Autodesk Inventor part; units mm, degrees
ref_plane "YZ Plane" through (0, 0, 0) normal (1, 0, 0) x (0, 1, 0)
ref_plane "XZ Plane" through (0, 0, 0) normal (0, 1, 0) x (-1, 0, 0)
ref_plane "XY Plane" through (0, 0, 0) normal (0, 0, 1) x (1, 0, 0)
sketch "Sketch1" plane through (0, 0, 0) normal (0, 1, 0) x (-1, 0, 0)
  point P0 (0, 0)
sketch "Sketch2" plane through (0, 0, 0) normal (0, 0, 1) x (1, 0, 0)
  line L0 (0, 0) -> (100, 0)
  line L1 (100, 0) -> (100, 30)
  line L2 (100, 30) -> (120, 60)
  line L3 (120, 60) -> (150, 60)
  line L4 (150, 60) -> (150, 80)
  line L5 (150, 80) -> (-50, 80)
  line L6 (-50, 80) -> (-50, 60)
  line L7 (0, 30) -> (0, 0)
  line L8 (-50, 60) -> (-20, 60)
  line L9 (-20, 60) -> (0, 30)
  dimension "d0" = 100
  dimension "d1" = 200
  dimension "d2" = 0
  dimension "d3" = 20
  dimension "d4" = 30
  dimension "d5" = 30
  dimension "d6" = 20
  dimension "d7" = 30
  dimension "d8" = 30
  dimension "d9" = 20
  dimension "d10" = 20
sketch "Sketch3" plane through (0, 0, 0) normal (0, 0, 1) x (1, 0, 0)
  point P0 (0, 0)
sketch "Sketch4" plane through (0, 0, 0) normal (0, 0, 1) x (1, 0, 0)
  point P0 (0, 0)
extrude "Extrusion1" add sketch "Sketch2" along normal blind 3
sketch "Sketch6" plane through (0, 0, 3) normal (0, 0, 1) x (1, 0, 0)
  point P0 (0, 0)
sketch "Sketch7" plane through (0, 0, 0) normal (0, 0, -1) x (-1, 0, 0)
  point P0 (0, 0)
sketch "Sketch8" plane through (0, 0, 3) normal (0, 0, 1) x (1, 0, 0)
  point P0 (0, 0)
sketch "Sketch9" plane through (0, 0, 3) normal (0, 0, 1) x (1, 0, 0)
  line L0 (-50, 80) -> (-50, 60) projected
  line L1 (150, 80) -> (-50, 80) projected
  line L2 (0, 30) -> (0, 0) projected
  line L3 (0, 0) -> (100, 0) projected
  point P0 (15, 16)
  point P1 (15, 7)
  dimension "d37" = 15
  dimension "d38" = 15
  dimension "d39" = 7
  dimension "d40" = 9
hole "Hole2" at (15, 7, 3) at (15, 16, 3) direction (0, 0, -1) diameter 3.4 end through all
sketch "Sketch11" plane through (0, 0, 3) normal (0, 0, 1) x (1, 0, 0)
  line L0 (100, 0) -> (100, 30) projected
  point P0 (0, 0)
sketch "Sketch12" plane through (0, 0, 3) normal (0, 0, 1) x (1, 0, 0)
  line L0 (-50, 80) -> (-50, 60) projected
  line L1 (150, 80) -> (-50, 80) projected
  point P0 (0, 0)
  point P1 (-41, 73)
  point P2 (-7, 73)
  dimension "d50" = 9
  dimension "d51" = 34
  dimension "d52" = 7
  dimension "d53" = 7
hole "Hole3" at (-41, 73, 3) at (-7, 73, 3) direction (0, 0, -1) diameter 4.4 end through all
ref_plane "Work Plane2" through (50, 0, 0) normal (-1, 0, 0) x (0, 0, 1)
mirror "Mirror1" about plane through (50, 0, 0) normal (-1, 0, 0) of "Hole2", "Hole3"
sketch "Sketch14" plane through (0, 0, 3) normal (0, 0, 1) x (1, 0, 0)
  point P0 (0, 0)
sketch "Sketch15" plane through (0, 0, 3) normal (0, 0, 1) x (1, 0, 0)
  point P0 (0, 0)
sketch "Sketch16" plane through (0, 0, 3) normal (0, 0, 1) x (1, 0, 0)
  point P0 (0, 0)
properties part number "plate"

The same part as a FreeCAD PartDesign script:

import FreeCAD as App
import Part
import Sketcher

V = App.Vector
Q = App.Units.Quantity

doc = App.newDocument("Part")
body = doc.addObject("PartDesign::Body", "Body")

# Sketch on XY plane
sketch1 = body.newObject("Sketcher::SketchObject", "Sketch")
sketch1.AttachmentSupport = (doc.getObject("XY_Plane"), [""])
sketch1.MapMode = "FlatFace"
sketch1.addGeometry([
    Part.LineSegment(V(0, 30, 0), V(0, 0, 0)),  # 0
    Part.LineSegment(V(0, 0, 0), V(100, 0, 0)),  # 1
    Part.LineSegment(V(100, 0, 0), V(100, 30, 0)),  # 2
    Part.LineSegment(V(100, 30, 0), V(120, 60, 0)),  # 3
    Part.LineSegment(V(120, 60, 0), V(150, 60, 0)),  # 4
    Part.LineSegment(V(150, 60, 0), V(150, 80, 0)),  # 5
    Part.LineSegment(V(150, 80, 0), V(-50, 80, 0)),  # 6
    Part.LineSegment(V(-50, 80, 0), V(-50, 60, 0)),  # 7
    Part.LineSegment(V(-50, 60, 0), V(-20, 60, 0)),  # 8
    Part.LineSegment(V(-20, 60, 0), V(0, 30, 0)),  # 9
], False)
sketch1.addConstraint([
    Sketcher.Constraint("Coincident", 0, 2, 1, 1),
    Sketcher.Constraint("Coincident", 1, 2, 2, 1),
    Sketcher.Constraint("Coincident", 2, 2, 3, 1),
    Sketcher.Constraint("Coincident", 3, 2, 4, 1),
    Sketcher.Constraint("Coincident", 4, 2, 5, 1),
    Sketcher.Constraint("Coincident", 5, 2, 6, 1),
    Sketcher.Constraint("Coincident", 6, 2, 7, 1),
    Sketcher.Constraint("Coincident", 7, 2, 8, 1),
    Sketcher.Constraint("Coincident", 8, 2, 9, 1),
    Sketcher.Constraint("Coincident", 9, 2, 0, 1),
    Sketcher.Constraint("Vertical", 0),
    Sketcher.Constraint("Horizontal", 1),
    Sketcher.Constraint("Vertical", 2),
    Sketcher.Constraint("Horizontal", 4),
    Sketcher.Constraint("Vertical", 5),
    Sketcher.Constraint("Horizontal", 6),
    Sketcher.Constraint("Vertical", 7),
    Sketcher.Constraint("Horizontal", 8),
    Sketcher.Constraint("Coincident", 0, 2, -1, 1),
    Sketcher.Constraint("Horizontal", 4, 2, 7, 2),
    Sketcher.Constraint("Horizontal", 2, 2, 9, 2),
    Sketcher.Constraint("Equal", 4, 8),
    Sketcher.Constraint("Equal", 8, 0),
    Sketcher.Constraint("Equal", 3, 9),
    Sketcher.Constraint("DistanceX", 1, 1, 1, 2, Q("100 mm")),
    Sketcher.Constraint("DistanceX", 4, 1, 4, 2, Q("30 mm")),
    Sketcher.Constraint("DistanceX", 6, 2, 6, 1, Q("200 mm")),
    Sketcher.Constraint("DistanceY", 5, 1, 5, 2, Q("20 mm")),
    Sketcher.Constraint("DistanceY", 2, 2, 3, 2, Q("30 mm")),
])
pad1 = body.newObject("PartDesign::Pad", "Pad")
pad1.Profile = sketch1
pad1.Length = 3

# Sketch on XY plane
sketch2 = body.newObject("Sketcher::SketchObject", "Sketch001")
sketch2.AttachmentSupport = (doc.getObject("XY_Plane"), [""])
sketch2.MapMode = "FlatFace"
sketch2.AttachmentOffset = App.Placement(V(0, 0, 3), App.Rotation())
sketch2.addGeometry([
    Part.Circle(V(15, 7, 0), V(0, 0, 1), 1.7),
    Part.Circle(V(15, 16, 0), V(0, 0, 1), 1.7),
], False)
sketch2.addConstraint([
    Sketcher.Constraint("Equal", 0, 1),
    Sketcher.Constraint("Vertical", 0, 3, 1, 3),
    Sketcher.Constraint("Diameter", 0, Q("3.4 mm")),
    Sketcher.Constraint("DistanceX", -1, 1, 0, 3, Q("15 mm")),
    Sketcher.Constraint("DistanceY", -1, 1, 0, 3, Q("7 mm")),
    Sketcher.Constraint("DistanceY", -1, 1, 1, 3, Q("16 mm")),
])
doc.recompute()
hole = body.newObject("PartDesign::Hole", "Hole")
hole.Profile = sketch2
hole.ThreadType = "None"
hole.Diameter = 3.4
hole.DepthType = "ThroughAll"

# Sketch on XY plane
sketch3 = body.newObject("Sketcher::SketchObject", "Sketch002")
sketch3.AttachmentSupport = (doc.getObject("XY_Plane"), [""])
sketch3.MapMode = "FlatFace"
sketch3.AttachmentOffset = App.Placement(V(0, 0, 3), App.Rotation())
sketch3.addGeometry([
    Part.Circle(V(-41, 73, 0), V(0, 0, 1), 2.2),
    Part.Circle(V(-7, 73, 0), V(0, 0, 1), 2.2),
], False)
sketch3.addConstraint([
    Sketcher.Constraint("Equal", 0, 1),
    Sketcher.Constraint("Horizontal", 0, 3, 1, 3),
    Sketcher.Constraint("Diameter", 0, Q("4.4 mm")),
    Sketcher.Constraint("DistanceX", 0, 3, -1, 1, Q("41 mm")),
    Sketcher.Constraint("DistanceY", -1, 1, 0, 3, Q("73 mm")),
    Sketcher.Constraint("DistanceX", 1, 3, -1, 1, Q("7 mm")),
])
doc.recompute()
hole2 = body.newObject("PartDesign::Hole", "Hole001")
hole2.Profile = sketch3
hole2.ThreadType = "None"
hole2.Diameter = 4.4
hole2.DepthType = "ThroughAll"
doc.recompute()

datumplane = body.newObject("PartDesign::Plane", "DatumPlane")
datumplane.AttachmentSupport = (doc.getObject("YZ_Plane"), [""])
datumplane.MapMode = "FlatFace"
datumplane.AttachmentOffset = App.Placement(V(0, 0, 50), App.Rotation())
mirrored = body.newObject("PartDesign::Mirrored", "Mirrored")
mirrored.Originals = [hole, hole2]
mirrored.MirrorPlane = (datumplane, [""])
body.Tip = mirrored

doc.recompute()
